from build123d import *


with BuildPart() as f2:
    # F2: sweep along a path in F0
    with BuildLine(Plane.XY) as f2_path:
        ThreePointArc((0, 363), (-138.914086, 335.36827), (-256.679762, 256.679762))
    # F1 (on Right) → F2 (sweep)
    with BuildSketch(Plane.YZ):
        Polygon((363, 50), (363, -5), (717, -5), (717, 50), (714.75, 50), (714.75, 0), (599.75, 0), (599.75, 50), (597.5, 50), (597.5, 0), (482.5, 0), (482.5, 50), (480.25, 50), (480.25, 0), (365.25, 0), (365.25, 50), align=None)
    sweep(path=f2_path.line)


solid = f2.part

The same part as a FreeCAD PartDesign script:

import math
import FreeCAD as App
import Part
import Sketcher

doc = App.newDocument("Part")
body = doc.addObject("PartDesign::Body", "Body")

# Sketch on YZ plane
sketch1 = doc.addObject("Sketcher::SketchObject", "Sketch")
body.addObject(sketch1)
sketch1.AttachmentSupport = (doc.YZ_Plane, [""])
sketch1.MapMode = "FlatFace"
sketch1.addGeometry(Part.LineSegment(App.Vector(363, 50, 0), App.Vector(363, -5, 0)), False)
sketch1.addGeometry(Part.LineSegment(App.Vector(363, -5, 0), App.Vector(717, -5, 0)), False)
sketch1.addGeometry(Part.LineSegment(App.Vector(717, -5, 0), App.Vector(717, 50, 0)), False)
sketch1.addGeometry(Part.LineSegment(App.Vector(717, 50, 0), App.Vector(714.8, 50, 0)), False)
sketch1.addGeometry(Part.LineSegment(App.Vector(714.8, 50, 0), App.Vector(714.8, 0, 0)), False)
sketch1.addGeometry(Part.LineSegment(App.Vector(714.8, 0, 0), App.Vector(599.8, 0, 0)), False)
sketch1.addGeometry(Part.LineSegment(App.Vector(599.8, 0, 0), App.Vector(599.8, 50, 0)), False)
sketch1.addGeometry(Part.LineSegment(App.Vector(599.8, 50, 0), App.Vector(597.5, 50, 0)), False)
sketch1.addGeometry(Part.LineSegment(App.Vector(597.5, 50, 0), App.Vector(597.5, 0, 0)), False)
sketch1.addGeometry(Part.LineSegment(App.Vector(597.5, 0, 0), App.Vector(482.5, 0, 0)), False)
sketch1.addGeometry(Part.LineSegment(App.Vector(482.5, 0, 0), App.Vector(482.5, 50, 0)), False)
sketch1.addGeometry(Part.LineSegment(App.Vector(482.5, 50, 0), App.Vector(480.2, 50, 0)), False)
sketch1.addGeometry(Part.LineSegment(App.Vector(480.2, 50, 0), App.Vector(480.2, 0, 0)), False)
sketch1.addGeometry(Part.LineSegment(App.Vector(480.2, 0, 0), App.Vector(365.2, 0, 0)), False)
sketch1.addGeometry(Part.LineSegment(App.Vector(365.2, 0, 0), App.Vector(365.2, 50, 0)), False)
sketch1.addGeometry(Part.LineSegment(App.Vector(365.2, 50, 0), App.Vector(363, 50, 0)), False)
sketch1.addConstraint(Sketcher.Constraint("Coincident", 0, 2, 1, 1))
sketch1.addConstraint(Sketcher.Constraint("Coincident", 1, 2, 2, 1))
sketch1.addConstraint(Sketcher.Constraint("Coincident", 2, 2, 3, 1))
sketch1.addConstraint(Sketcher.Constraint("Coincident", 3, 2, 4, 1))
sketch1.addConstraint(Sketcher.Constraint("Coincident", 4, 2, 5, 1))
sketch1.addConstraint(Sketcher.Constraint("Coincident", 5, 2, 6, 1))
sketch1.addConstraint(Sketcher.Constraint("Coincident", 6, 2, 7, 1))
sketch1.addConstraint(Sketcher.Constraint("Coincident", 7, 2, 8, 1))
sketch1.addConstraint(Sketcher.Constraint("Coincident", 8, 2, 9, 1))
sketch1.addConstraint(Sketcher.Constraint("Coincident", 9, 2, 10, 1))
sketch1.addConstraint(Sketcher.Constraint("Coincident", 10, 2, 11, 1))
sketch1.addConstraint(Sketcher.Constraint("Coincident", 11, 2, 12, 1))
sketch1.addConstraint(Sketcher.Constraint("Coincident", 12, 2, 13, 1))
sketch1.addConstraint(Sketcher.Constraint("Coincident", 13, 2, 14, 1))
sketch1.addConstraint(Sketcher.Constraint("Coincident", 14, 2, 15, 1))
sketch1.addConstraint(Sketcher.Constraint("Coincident", 15, 2, 0, 1))
sketch1.addConstraint(Sketcher.Constraint("Vertical", 0))
sketch1.addConstraint(Sketcher.Constraint("Horizontal", 1))
sketch1.addConstraint(Sketcher.Constraint("Vertical", 2))
sketch1.addConstraint(Sketcher.Constraint("Horizontal", 3))
sketch1.addConstraint(Sketcher.Constraint("Vertical", 4))
sketch1.addConstraint(Sketcher.Constraint("Horizontal", 5))
sketch1.addConstraint(Sketcher.Constraint("Vertical", 6))
sketch1.addConstraint(Sketcher.Constraint("Horizontal", 7))
sketch1.addConstraint(Sketcher.Constraint("Vertical", 8))
sketch1.addConstraint(Sketcher.Constraint("Horizontal", 9))
sketch1.addConstraint(Sketcher.Constraint("Vertical", 10))
sketch1.addConstraint(Sketcher.Constraint("Horizontal", 11))
sketch1.addConstraint(Sketcher.Constraint("Vertical", 12))
sketch1.addConstraint(Sketcher.Constraint("Horizontal", 13))
sketch1.addConstraint(Sketcher.Constraint("Vertical", 14))
sketch1.addConstraint(Sketcher.Constraint("Horizontal", 15))
sketch1.addConstraint(Sketcher.Constraint("PointOnObject", 4, 2, -1))
sketch1.addConstraint(Sketcher.Constraint("PointOnObject", 8, 2, -1))
sketch1.addConstraint(Sketcher.Constraint("PointOnObject", 12, 2, -1))
sketch1.addConstraint(Sketcher.Constraint("Horizontal", 3, 2, 6, 2))
sketch1.addConstraint(Sketcher.Constraint("Horizontal", 7, 2, 10, 2))
sketch1.addConstraint(Sketcher.Constraint("Horizontal", 11, 2, 14, 2))
sketch1.addConstraint(Sketcher.Constraint("Equal", 3, 7))
sketch1.addConstraint(Sketcher.Constraint("Equal", 5, 9))
sketch1.addConstraint(Sketcher.Constraint("Equal", 7, 11))
sketch1.addConstraint(Sketcher.Constraint("Equal", 9, 13))
sketch1.addConstraint(Sketcher.Constraint("Equal", 11, 15))
sketch1.addConstraint(Sketcher.Constraint("DistanceX", 1, 1, 1, 2, 354.0))
sketch1.addConstraint(Sketcher.Constraint("DistanceX", 5, 2, 5, 1, 115.0))
sketch1.addConstraint(Sketcher.Constraint("DistanceY", 0, 2, 0, 1, 55.0))
sketch1.addConstraint(Sketcher.Constraint("DistanceY", 4, 2, 4, 1, 50.0))
sketch1.addConstraint(Sketcher.Constraint("DistanceX", -1, 1, 0, 2, 363.0))

# Sketch on XY plane
sketch2 = doc.addObject("Sketcher::SketchObject", "Sketch001")
body.addObject(sketch2)
sketch2.AttachmentSupport = (doc.XY_Plane, [""])
sketch2.MapMode = "FlatFace"
sketch2.addGeometry(Part.ArcOfCircle(Part.Circle(App.Vector(0, 0, 0), App.Vector(0, 0, 1), 363), math.radians(90), math.radians(135)), False)
sketch2.addConstraint(Sketcher.Constraint("Coincident", 0, 3, -1, 1))
sketch2.addConstraint(Sketcher.Constraint("PointOnObject", 0, 1, -2))
sketch2.addConstraint(Sketcher.Constraint("DistanceY", -1, 1, 0, 1, 363.0))
sketch2.addConstraint(Sketcher.Constraint("DistanceY", 0, 3, 0, 2, 256.679769))
doc.recompute()

additivepipe = doc.addObject("PartDesign::AdditivePipe", "AdditivePipe")
body.addObject(additivepipe)
additivepipe.Profile = sketch1
additivepipe.Spine = (sketch2, ["Edge1"])

doc.recompute()
